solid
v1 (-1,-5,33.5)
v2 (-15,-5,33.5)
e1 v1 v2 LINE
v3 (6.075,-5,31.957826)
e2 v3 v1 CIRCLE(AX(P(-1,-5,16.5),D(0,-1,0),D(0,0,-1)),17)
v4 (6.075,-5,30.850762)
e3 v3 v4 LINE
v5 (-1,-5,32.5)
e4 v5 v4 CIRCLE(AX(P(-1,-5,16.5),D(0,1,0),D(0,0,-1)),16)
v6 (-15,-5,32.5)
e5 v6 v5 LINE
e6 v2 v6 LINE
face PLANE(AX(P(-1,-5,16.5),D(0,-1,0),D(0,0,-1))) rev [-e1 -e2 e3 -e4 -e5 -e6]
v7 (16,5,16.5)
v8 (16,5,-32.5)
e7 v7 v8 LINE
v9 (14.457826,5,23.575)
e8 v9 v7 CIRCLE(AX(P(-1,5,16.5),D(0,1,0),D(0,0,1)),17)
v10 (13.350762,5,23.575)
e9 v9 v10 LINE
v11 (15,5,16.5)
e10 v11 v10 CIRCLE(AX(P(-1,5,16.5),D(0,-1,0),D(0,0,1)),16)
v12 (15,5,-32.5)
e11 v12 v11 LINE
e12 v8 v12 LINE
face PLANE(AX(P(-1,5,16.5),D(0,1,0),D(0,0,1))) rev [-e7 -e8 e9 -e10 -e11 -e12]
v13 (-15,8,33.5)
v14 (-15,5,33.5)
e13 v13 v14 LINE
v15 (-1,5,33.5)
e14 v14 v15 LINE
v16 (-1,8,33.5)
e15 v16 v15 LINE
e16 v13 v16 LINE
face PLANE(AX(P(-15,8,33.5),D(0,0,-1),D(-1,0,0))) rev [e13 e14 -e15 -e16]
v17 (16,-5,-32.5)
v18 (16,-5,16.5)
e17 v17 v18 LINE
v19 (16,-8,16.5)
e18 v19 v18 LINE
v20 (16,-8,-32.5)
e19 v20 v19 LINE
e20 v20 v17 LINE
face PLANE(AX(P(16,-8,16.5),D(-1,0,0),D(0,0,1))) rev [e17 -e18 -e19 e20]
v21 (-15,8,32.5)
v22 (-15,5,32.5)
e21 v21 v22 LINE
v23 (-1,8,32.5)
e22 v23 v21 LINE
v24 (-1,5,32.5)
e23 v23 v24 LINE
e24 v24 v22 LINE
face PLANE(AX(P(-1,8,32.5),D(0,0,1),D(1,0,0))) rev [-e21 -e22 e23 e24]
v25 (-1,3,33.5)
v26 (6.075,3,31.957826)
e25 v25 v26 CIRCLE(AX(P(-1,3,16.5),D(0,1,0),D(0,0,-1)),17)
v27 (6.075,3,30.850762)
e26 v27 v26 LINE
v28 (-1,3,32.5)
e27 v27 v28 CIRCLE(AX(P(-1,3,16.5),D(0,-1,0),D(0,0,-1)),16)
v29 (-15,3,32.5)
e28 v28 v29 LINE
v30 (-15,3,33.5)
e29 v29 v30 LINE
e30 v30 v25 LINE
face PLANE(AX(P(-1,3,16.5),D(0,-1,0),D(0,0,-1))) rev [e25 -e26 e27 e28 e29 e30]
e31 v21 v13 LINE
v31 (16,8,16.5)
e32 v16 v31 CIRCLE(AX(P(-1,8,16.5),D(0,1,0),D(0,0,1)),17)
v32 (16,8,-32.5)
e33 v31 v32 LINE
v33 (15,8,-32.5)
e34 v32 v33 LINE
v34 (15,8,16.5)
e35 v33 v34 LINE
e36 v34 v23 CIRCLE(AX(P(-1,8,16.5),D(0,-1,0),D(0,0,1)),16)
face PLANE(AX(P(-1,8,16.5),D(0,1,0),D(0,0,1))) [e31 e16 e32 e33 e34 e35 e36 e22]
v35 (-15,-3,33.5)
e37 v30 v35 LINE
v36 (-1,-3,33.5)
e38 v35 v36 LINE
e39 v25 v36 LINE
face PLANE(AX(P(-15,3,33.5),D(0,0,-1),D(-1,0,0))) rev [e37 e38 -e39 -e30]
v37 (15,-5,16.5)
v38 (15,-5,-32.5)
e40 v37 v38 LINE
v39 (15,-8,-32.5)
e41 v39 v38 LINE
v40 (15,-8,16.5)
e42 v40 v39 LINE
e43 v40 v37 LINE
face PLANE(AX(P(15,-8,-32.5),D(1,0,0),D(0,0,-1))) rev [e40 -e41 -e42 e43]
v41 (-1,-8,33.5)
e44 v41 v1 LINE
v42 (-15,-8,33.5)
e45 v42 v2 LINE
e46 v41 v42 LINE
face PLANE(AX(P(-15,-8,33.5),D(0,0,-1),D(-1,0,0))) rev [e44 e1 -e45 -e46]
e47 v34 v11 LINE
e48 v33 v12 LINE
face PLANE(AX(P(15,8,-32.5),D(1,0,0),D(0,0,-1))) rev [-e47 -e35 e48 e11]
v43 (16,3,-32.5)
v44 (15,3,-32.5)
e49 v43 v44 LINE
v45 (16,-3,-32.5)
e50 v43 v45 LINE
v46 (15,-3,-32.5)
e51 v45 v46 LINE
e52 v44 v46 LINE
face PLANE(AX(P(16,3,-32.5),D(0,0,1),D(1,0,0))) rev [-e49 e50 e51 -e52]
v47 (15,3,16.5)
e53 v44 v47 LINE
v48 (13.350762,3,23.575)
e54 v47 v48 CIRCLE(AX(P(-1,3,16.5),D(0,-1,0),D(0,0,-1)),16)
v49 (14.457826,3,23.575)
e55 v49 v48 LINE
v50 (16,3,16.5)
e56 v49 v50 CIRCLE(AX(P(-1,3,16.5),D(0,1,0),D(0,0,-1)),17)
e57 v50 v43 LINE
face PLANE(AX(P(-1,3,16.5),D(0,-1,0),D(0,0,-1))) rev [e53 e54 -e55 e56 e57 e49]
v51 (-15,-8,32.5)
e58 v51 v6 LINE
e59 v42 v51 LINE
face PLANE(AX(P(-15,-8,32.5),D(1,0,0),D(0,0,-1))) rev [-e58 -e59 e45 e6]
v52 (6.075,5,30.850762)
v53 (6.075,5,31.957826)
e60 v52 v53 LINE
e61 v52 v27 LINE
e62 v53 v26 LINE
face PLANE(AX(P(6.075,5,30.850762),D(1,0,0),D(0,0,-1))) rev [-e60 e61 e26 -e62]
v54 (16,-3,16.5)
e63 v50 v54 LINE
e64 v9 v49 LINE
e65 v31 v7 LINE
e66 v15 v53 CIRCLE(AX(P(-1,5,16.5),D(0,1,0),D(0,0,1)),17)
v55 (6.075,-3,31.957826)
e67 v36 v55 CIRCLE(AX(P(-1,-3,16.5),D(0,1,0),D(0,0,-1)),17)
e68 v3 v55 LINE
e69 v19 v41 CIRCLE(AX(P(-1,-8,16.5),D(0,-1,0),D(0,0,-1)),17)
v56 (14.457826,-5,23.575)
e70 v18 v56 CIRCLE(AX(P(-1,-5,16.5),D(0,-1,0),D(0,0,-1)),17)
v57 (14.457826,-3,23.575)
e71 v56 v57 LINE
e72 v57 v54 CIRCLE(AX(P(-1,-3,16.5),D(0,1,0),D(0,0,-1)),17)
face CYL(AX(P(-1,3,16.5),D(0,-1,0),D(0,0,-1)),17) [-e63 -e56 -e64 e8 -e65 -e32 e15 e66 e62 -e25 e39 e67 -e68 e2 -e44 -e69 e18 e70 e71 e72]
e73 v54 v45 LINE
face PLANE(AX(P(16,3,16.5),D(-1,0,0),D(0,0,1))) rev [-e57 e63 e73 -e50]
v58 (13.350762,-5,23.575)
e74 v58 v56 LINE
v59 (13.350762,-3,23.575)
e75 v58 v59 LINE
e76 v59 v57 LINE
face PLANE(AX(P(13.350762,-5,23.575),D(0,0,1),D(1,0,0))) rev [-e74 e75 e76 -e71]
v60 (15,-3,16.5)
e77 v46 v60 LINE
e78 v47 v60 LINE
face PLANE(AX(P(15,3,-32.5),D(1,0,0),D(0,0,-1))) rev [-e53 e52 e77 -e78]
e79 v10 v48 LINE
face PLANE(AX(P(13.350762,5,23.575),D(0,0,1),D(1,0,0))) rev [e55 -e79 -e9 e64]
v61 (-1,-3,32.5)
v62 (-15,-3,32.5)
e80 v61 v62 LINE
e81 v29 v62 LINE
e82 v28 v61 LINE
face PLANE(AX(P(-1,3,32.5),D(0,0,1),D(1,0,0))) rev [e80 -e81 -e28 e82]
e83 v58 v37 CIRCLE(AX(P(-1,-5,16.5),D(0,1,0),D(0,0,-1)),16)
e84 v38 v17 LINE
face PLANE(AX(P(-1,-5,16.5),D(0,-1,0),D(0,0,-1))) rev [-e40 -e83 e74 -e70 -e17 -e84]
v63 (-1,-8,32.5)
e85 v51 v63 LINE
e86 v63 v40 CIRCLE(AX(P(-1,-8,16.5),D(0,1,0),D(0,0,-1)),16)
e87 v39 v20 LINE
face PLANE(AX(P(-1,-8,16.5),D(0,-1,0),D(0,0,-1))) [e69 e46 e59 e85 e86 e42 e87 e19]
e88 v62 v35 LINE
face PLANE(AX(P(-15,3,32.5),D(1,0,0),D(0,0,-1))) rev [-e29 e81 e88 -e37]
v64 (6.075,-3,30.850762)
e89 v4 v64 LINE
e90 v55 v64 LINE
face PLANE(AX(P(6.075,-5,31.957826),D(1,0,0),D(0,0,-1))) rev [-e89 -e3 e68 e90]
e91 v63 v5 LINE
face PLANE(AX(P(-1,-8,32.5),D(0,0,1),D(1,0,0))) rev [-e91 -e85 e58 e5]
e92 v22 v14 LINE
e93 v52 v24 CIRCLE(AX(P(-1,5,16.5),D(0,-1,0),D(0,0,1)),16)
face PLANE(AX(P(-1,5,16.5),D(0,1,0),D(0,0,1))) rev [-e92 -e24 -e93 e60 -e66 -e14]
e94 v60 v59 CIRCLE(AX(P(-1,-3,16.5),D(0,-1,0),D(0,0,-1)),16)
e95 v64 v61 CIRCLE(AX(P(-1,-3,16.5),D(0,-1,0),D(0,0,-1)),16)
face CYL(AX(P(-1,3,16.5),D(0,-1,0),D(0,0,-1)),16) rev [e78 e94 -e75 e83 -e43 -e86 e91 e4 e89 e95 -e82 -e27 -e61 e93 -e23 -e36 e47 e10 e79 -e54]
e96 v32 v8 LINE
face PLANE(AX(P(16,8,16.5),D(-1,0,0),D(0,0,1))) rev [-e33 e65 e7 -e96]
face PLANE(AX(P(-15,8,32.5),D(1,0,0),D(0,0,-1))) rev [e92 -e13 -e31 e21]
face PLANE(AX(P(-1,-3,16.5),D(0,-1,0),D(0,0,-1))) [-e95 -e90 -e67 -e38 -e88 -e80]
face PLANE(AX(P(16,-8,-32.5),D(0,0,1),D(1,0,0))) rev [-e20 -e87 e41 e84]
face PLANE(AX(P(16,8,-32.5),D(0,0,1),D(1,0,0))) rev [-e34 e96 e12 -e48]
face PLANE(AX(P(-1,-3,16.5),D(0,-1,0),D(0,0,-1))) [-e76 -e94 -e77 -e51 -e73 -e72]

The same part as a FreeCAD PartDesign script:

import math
import FreeCAD as App
import Part
import Sketcher
from FreeCAD import Vector

doc = App.newDocument("Part")
body = doc.addObject("PartDesign::Body", "Body")

sketch1 = body.newObject("Sketcher::SketchObject", "Sketch")
sketch1.AttachmentSupport = (doc.getObject("XZ_Plane"), [""])
sketch1.MapMode = "FlatFace"
sketch1.addGeometry([
    Part.LineSegment(Vector(15, -32.5, 0), Vector(15, 16.5, 0)),
    Part.ArcOfCircle(Part.Circle(Vector(-1, 16.5, 0), Vector(0, 0, 1), 16), math.radians(0), math.radians(90)),
    Part.LineSegment(Vector(-1, 32.5, 0), Vector(-15, 32.5, 0)),
    Part.LineSegment(Vector(-15, 32.5, 0), Vector(-15, 33.5, 0)),
    Part.LineSegment(Vector(-15, 33.5, 0), Vector(-1, 33.5, 0)),
    Part.ArcOfCircle(Part.Circle(Vector(-1, 16.5, 0), Vector(0, 0, 1), 17), math.radians(0), math.radians(90)),
    Part.LineSegment(Vector(16, 16.5, 0), Vector(16, -32.5, 0)),
    Part.LineSegment(Vector(16, -32.5, 0), Vector(15, -32.5, 0)),
], False)
sketch1.addConstraint([
    Sketcher.Constraint("Tangent", 0, 2, 1, 1),
    Sketcher.Constraint("Tangent", 1, 2, 2, 1),
    Sketcher.Constraint("Coincident", 2, 2, 3, 1),
    Sketcher.Constraint("Coincident", 3, 2, 4, 1),
    Sketcher.Constraint("Tangent", 4, 2, 5, 2),
    Sketcher.Constraint("Tangent", 5, 1, 6, 1),
    Sketcher.Constraint("Coincident", 6, 2, 7, 1),
    Sketcher.Constraint("Coincident", 7, 2, 0, 1),
    Sketcher.Constraint("Vertical", 0),
    Sketcher.Constraint("Horizontal", 2),
    Sketcher.Constraint("Vertical", 3),
    Sketcher.Constraint("Horizontal", 4),
    Sketcher.Constraint("Vertical", 6),
    Sketcher.Constraint("Horizontal", 7),
    Sketcher.Constraint("Coincident", 5, 3, 1, 3),
    Sketcher.Constraint("Symmetric", 2, 2, 7, 2, -1, 1),
    Sketcher.Constraint("Radius", 1, 16.0),
    Sketcher.Constraint("Radius", 5, 17.0),
    Sketcher.Constraint("DistanceX", 2, 2, 2, 1, 14.0),
    Sketcher.Constraint("DistanceY", 0, 1, 0, 2, 49.0),
])
pad1 = body.newObject("PartDesign::Pad", "Pad")
pad1.Profile = sketch1
pad1.Length = 6
pad1.Midplane = True

sketch2 = body.newObject("Sketcher::SketchObject", "Sketch001")
sketch2.AttachmentSupport = (doc.getObject("XZ_Plane"), [""])
sketch2.MapMode = "FlatFace"
sketch2.AttachmentOffset = App.Placement(Vector(0, 0, -3), App.Rotation())
sketch2.addGeometry([
    Part.LineSegment(Vector(6.075, 30.850762, 0), Vector(6.075, 31.957826, 0)),
    Part.ArcOfCircle(Part.Circle(Vector(-1, 16.5, 0), Vector(0, 0, 1), 17), math.radians(24.593426), math.radians(65.406574)),
    Part.LineSegment(Vector(14.457826, 23.575, 0), Vector(13.350762, 23.575, 0)),
    Part.ArcOfCircle(Part.Circle(Vector(-1, 16.5, 0), Vector(0, 0, 1), 16), math.radians(26.243536), math.radians(63.756464)),
], False)
sketch2.addConstraint([
    Sketcher.Constraint("Coincident", 0, 2, 1, 2),
    Sketcher.Constraint("Coincident", 1, 1, 2, 1),
    Sketcher.Constraint("Coincident", 2, 2, 3, 1),
    Sketcher.Constraint("Coincident", 3, 2, 0, 1),
    Sketcher.Constraint("Vertical", 0),
    Sketcher.Constraint("Horizontal", 2),
    Sketcher.Constraint("Coincident", 3, 3, 1, 3),
    Sketcher.Constraint("Equal", 2, 0),
    Sketcher.Constraint("Radius", 1, 17.0),
    Sketcher.Constraint("Radius", 3, 16.0),
    Sketcher.Constraint("DistanceX", 1, 3, -1, 1, 1.0),
    Sketcher.Constraint("DistanceY", -1, 1, 1, 3, 16.5),
    Sketcher.Constraint("DistanceX", -1, 1, 0, 2, 6.075),
])
pad2 = body.newObject("PartDesign::Pad", "Pad001")
pad2.Profile = sketch2
pad2.Length = 2
pad2.Reversed = True

sketch3 = body.newObject("Sketcher::SketchObject", "Sketch002")
sketch3.AttachmentSupport = (doc.getObject("XZ_Plane"), [""])
sketch3.MapMode = "FlatFace"
sketch3.AttachmentOffset = App.Placement(Vector(0, 0, 3), App.Rotation())
sketch3.addGeometry([
    Part.LineSegment(Vector(6.075, 31.957826, 0), Vector(6.075, 30.850762, 0)),
    Part.ArcOfCircle(Part.Circle(Vector(-1, 16.5, 0), Vector(0, 0, 1), 16), math.radians(26.243536), math.radians(63.756464)),
    Part.LineSegment(Vector(13.350762, 23.575, 0), Vector(14.457826, 23.575, 0)),
    Part.ArcOfCircle(Part.Circle(Vector(-1, 16.5, 0), Vector(0, 0, 1), 17), math.radians(24.593426), math.radians(65.406574)),
], False)
sketch3.addConstraint([
    Sketcher.Constraint("Coincident", 0, 2, 1, 2),
    Sketcher.Constraint("Coincident", 1, 1, 2, 1),
    Sketcher.Constraint("Coincident", 2, 2, 3, 1),
    Sketcher.Constraint("Coincident", 3, 2, 0, 1),
    Sketcher.Constraint("Vertical", 0),
    Sketcher.Constraint("Horizontal", 2),
    Sketcher.Constraint("Coincident", 3, 3, 1, 3),
    Sketcher.Constraint("Equal", 2, 0),
    Sketcher.Constraint("Radius", 1, 16.0),
    Sketcher.Constraint("Radius", 3, 17.0),
    Sketcher.Constraint("DistanceX", 1, 3, -1, 1, 1.0),
    Sketcher.Constraint("DistanceY", -1, 1, 1, 3, 16.5),
    Sketcher.Constraint("DistanceX", -1, 1, 0, 2, 6.075),
])
pad3 = body.newObject("PartDesign::Pad", "Pad002")
pad3.Profile = sketch3
pad3.Length = 2

sketch4 = body.newObject("Sketcher::SketchObject", "Sketch003")
sketch4.AttachmentSupport = (doc.getObject("XZ_Plane"), [""])
sketch4.MapMode = "FlatFace"
sketch4.AttachmentOffset = App.Placement(Vector(0, 0, 5), App.Rotation())
sketch4.addGeometry([
    Part.LineSegment(Vector(15, -32.5, 0), Vector(16, -32.5, 0)),
    Part.LineSegment(Vector(16, -32.5, 0), Vector(16, 16.5, 0)),
    Part.ArcOfCircle(Part.Circle(Vector(-1, 16.5, 0), Vector(0, 0, 1), 17), math.radians(0), math.radians(24.593426)),
    Part.ArcOfCircle(Part.Circle(Vector(-1, 16.5, 0), Vector(0, 0, 1), 17), math.radians(24.593426), math.radians(65.406574)),
    Part.ArcOfCircle(Part.Circle(Vector(-1, 16.5, 0), Vector(0, 0, 1), 17), math.radians(65.406574), math.radians(90)),
    Part.LineSegment(Vector(-1, 33.5, 0), Vector(-15, 33.5, 0)),
    Part.LineSegment(Vector(-15, 33.5, 0), Vector(-15, 32.5, 0)),
    Part.LineSegment(Vector(-15, 32.5, 0), Vector(-1, 32.5, 0)),
    Part.ArcOfCircle(Part.Circle(Vector(-1, 16.5, 0), Vector(0, 0, 1), 16), math.radians(63.756464), math.radians(90)),
    Part.ArcOfCircle(Part.Circle(Vector(-1, 16.5, 0), Vector(0, 0, 1), 16), math.radians(26.243536), math.radians(63.756464)),
    Part.ArcOfCircle(Part.Circle(Vector(-1, 16.5, 0), Vector(0, 0, 1), 16), math.radians(0), math.radians(26.243536)),
    Part.LineSegment(Vector(15, 16.5, 0), Vector(15, -32.5, 0)),
], False)
sketch4.addConstraint([
    Sketcher.Constraint("Coincident", 0, 2, 1, 1),
    Sketcher.Constraint("Tangent", 1, 2, 2, 1),
    Sketcher.Constraint("Tangent", 2, 2, 3, 1),
    Sketcher.Constraint("Tangent", 3, 2, 4, 1),
    Sketcher.Constraint("Tangent", 4, 2, 5, 1),
    Sketcher.Constraint("Coincident", 5, 2, 6, 1),
    Sketcher.Constraint("Coincident", 6, 2, 7, 1),
    Sketcher.Constraint("Tangent", 7, 2, 8, 2),
    Sketcher.Constraint("Tangent", 8, 1, 9, 2),
    Sketcher.Constraint("Tangent", 9, 1, 10, 2),
    Sketcher.Constraint("Tangent", 10, 1, 11, 1),
    Sketcher.Constraint("Coincident", 11, 2, 0, 1),
    Sketcher.Constraint("Horizontal", 0),
    Sketcher.Constraint("Vertical", 1),
    Sketcher.Constraint("Horizontal", 5),
    Sketcher.Constraint("Vertical", 6),
    Sketcher.Constraint("Horizontal", 7),
    Sketcher.Constraint("Vertical", 11),
    Sketcher.Constraint("Coincident", 4, 3, 2, 3),
    Sketcher.Constraint("Coincident", 8, 3, 2, 3),
    Sketcher.Constraint("Coincident", 10, 3, 2, 3),
    Sketcher.Constraint("Symmetric", 6, 2, 11, 2, -1, 1),
    Sketcher.Constraint("Horizontal", 2, 2, 9, 1),
    Sketcher.Constraint("Vertical", 3, 2, 8, 1),
    Sketcher.Constraint("Radius", 2, 17.0),
    Sketcher.Constraint("Radius", 8, 16.0),
    Sketcher.Constraint("DistanceX", 5, 2, 5, 1, 14.0),
    Sketcher.Constraint("DistanceY", 1, 1, 1, 2, 49.0),
    Sketcher.Constraint("DistanceY", -1, 1, 2, 2, 23.575),
    Sketcher.Constraint("DistanceX", -1, 1, 3, 2, 6.075),
])
pad4 = body.newObject("PartDesign::Pad", "Pad003")
pad4.Profile = sketch4
pad4.Length = 3

sketch5 = body.newObject("Sketcher::SketchObject", "Sketch004")
sketch5.AttachmentSupport = (doc.getObject("XZ_Plane"), [""])
sketch5.MapMode = "FlatFace"
sketch5.AttachmentOffset = App.Placement(Vector(0, 0, -5), App.Rotation())
sketch5.addGeometry([
    Part.LineSegment(Vector(16, -32.5, 0), Vector(15, -32.5, 0)),
    Part.LineSegment(Vector(15, -32.5, 0), Vector(15, 16.5, 0)),
    Part.ArcOfCircle(Part.Circle(Vector(-1, 16.5, 0), Vector(0, 0, 1), 16), math.radians(0), math.radians(26.243536)),
    Part.ArcOfCircle(Part.Circle(Vector(-1, 16.5, 0), Vector(0, 0, 1), 16), math.radians(26.243536), math.radians(63.756464)),
    Part.ArcOfCircle(Part.Circle(Vector(-1, 16.5, 0), Vector(0, 0, 1), 16), math.radians(63.756464), math.radians(90)),
    Part.LineSegment(Vector(-1, 32.5, 0), Vector(-15, 32.5, 0)),
    Part.LineSegment(Vector(-15, 32.5, 0), Vector(-15, 33.5, 0)),
    Part.LineSegment(Vector(-15, 33.5, 0), Vector(-1, 33.5, 0)),
    Part.ArcOfCircle(Part.Circle(Vector(-1, 16.5, 0), Vector(0, 0, 1), 17), math.radians(65.406574), math.radians(90)),
    Part.ArcOfCircle(Part.Circle(Vector(-1, 16.5, 0), Vector(0, 0, 1), 17), math.radians(24.593426), math.radians(65.406574)),
    Part.ArcOfCircle(Part.Circle(Vector(-1, 16.5, 0), Vector(0, 0, 1), 17), math.radians(0), math.radians(24.593426)),
    Part.LineSegment(Vector(16, 16.5, 0), Vector(16, -32.5, 0)),
], False)
sketch5.addConstraint([
    Sketcher.Constraint("Coincident", 0, 2, 1, 1),
    Sketcher.Constraint("Tangent", 1, 2, 2, 1),
    Sketcher.Constraint("Tangent", 2, 2, 3, 1),
    Sketcher.Constraint("Tangent", 3, 2, 4, 1),
    Sketcher.Constraint("Tangent", 4, 2, 5, 1),
    Sketcher.Constraint("Coincident", 5, 2, 6, 1),
    Sketcher.Constraint("Coincident", 6, 2, 7, 1),
    Sketcher.Constraint("Tangent", 7, 2, 8, 2),
    Sketcher.Constraint("Tangent", 8, 1, 9, 2),
    Sketcher.Constraint("Tangent", 9, 1, 10, 2),
    Sketcher.Constraint("Tangent", 10, 1, 11, 1),
    Sketcher.Constraint("Coincident", 11, 2, 0, 1),
    Sketcher.Constraint("Horizontal", 0),
    Sketcher.Constraint("Vertical", 1),
    Sketcher.Constraint("Horizontal", 5),
    Sketcher.Constraint("Vertical", 6),
    Sketcher.Constraint("Horizontal", 7),
    Sketcher.Constraint("Vertical", 11),
    Sketcher.Constraint("Coincident", 4, 3, 2, 3),
    Sketcher.Constraint("Coincident", 8, 3, 2, 3),
    Sketcher.Constraint("Coincident", 10, 3, 2, 3),
    Sketcher.Constraint("Symmetric", 0, 2, 5, 2, -1, 1),
    Sketcher.Constraint("Horizontal", 2, 2, 9, 1),
    Sketcher.Constraint("Vertical", 3, 2, 8, 1),
    Sketcher.Constraint("Radius", 2, 16.0),
    Sketcher.Constraint("Radius", 8, 17.0),
    Sketcher.Constraint("DistanceX", 5, 2, 5, 1, 14.0),
    Sketcher.Constraint("DistanceY", 1, 1, 1, 2, 49.0),
    Sketcher.Constraint("DistanceY", -1, 1, 2, 2, 23.575),
    Sketcher.Constraint("DistanceX", -1, 1, 3, 2, 6.075),
])
pad5 = body.newObject("PartDesign::Pad", "Pad004")
pad5.Profile = sketch5
pad5.Length = 3
pad5.Reversed = True

doc.recompute()
